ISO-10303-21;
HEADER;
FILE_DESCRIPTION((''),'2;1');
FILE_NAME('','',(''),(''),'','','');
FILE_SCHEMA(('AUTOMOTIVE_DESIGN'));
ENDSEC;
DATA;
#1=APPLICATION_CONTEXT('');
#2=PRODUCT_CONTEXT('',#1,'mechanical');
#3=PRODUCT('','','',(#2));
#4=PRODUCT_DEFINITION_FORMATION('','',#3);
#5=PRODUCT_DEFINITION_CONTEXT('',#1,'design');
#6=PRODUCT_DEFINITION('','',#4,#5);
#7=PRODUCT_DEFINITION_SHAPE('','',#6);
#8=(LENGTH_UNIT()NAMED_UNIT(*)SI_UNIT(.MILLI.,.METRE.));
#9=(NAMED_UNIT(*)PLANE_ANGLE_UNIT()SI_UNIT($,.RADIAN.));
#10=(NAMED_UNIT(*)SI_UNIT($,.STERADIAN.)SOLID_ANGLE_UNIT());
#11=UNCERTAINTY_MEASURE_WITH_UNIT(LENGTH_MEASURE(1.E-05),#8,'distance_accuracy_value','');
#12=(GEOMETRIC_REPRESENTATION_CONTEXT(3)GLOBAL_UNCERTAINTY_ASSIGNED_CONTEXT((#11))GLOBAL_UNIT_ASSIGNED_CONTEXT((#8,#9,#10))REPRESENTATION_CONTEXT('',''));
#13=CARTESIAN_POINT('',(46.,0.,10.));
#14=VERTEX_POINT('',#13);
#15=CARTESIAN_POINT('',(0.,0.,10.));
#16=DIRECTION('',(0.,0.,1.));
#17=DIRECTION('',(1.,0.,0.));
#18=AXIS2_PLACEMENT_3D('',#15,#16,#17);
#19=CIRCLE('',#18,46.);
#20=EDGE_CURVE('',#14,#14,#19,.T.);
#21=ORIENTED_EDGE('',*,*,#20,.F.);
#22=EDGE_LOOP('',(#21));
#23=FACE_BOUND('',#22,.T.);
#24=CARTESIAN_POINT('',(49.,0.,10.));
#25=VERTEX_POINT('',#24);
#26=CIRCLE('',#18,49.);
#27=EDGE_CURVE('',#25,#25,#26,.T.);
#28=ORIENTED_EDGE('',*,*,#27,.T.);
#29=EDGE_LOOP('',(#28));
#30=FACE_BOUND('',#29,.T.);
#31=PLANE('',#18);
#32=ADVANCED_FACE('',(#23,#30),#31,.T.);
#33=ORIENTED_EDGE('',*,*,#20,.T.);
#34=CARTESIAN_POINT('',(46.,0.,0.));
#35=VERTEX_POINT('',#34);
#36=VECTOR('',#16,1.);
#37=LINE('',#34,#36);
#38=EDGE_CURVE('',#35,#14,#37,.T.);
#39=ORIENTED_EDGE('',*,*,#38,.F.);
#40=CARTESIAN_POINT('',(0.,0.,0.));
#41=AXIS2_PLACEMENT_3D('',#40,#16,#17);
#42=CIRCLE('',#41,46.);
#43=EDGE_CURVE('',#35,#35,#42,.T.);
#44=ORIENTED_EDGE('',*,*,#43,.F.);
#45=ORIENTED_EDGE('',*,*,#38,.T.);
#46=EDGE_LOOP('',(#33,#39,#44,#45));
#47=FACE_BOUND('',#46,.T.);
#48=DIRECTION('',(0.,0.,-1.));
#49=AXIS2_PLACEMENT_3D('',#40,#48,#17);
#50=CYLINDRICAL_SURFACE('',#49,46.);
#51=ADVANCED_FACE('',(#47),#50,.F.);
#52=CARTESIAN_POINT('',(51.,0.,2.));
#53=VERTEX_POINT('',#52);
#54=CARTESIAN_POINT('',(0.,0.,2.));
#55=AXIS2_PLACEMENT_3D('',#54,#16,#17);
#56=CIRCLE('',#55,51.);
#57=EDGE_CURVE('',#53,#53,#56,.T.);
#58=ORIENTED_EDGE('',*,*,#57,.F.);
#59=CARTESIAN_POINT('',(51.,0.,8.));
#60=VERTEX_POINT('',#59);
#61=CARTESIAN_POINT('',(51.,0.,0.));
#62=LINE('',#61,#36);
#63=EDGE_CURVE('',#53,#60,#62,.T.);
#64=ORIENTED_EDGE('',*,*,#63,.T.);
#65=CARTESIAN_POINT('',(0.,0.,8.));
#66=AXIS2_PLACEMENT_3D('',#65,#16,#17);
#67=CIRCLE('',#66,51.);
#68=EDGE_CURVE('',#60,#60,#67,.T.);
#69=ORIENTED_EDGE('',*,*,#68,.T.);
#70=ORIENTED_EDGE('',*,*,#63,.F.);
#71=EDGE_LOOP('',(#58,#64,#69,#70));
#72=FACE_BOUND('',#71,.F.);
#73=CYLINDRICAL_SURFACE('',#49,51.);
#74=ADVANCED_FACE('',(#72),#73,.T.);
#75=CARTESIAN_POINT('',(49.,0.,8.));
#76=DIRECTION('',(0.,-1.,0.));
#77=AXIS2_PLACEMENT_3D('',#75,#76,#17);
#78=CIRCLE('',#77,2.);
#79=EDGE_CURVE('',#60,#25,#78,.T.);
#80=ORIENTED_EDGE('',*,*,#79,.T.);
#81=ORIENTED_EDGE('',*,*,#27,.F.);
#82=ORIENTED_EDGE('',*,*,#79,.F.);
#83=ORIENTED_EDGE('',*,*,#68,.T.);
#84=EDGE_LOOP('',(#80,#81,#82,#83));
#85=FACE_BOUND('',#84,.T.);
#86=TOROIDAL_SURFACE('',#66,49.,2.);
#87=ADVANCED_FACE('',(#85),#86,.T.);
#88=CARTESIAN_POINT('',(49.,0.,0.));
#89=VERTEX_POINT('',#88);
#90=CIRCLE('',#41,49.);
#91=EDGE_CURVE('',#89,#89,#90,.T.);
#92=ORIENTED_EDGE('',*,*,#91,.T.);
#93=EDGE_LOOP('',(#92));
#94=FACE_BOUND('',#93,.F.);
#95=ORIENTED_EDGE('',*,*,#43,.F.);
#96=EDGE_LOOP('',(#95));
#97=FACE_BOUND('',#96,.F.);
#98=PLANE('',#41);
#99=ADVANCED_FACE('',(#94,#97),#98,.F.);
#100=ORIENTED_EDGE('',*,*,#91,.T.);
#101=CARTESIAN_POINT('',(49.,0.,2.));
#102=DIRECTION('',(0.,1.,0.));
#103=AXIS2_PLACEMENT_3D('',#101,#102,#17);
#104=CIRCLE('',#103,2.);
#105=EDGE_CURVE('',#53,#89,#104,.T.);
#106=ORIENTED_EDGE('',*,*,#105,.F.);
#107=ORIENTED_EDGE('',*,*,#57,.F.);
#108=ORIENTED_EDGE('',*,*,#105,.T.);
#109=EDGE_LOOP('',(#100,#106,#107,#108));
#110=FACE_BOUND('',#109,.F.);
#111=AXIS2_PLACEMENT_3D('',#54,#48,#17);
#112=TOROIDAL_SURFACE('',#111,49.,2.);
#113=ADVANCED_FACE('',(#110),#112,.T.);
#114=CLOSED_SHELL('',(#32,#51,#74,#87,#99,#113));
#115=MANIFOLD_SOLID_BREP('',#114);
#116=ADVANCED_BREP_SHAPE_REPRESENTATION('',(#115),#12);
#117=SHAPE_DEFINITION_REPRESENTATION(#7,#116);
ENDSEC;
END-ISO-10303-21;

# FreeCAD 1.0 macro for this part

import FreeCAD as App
import Part
import Sketcher
Q = App.Units.Quantity


def edges_at(feature, points):
    """Names of the edges that pass closest to the given points."""
    edges = feature.Shape.Edges
    near = lambda p: min(range(len(edges)), key=lambda i: edges[i].distToShape(Part.Vertex(*p))[0])
    return sorted({f"Edge{near(p) + 1}" for p in points})

doc = App.newDocument("Part")
body = doc.addObject("PartDesign::Body", "Body")

sketch1 = doc.addObject("Sketcher::SketchObject", "Sketch")
body.addObject(sketch1)
sketch1.AttachmentSupport = (doc.XY_Plane, [""])
sketch1.MapMode = "FlatFace"
sketch1.addGeometry(Part.Circle(App.Vector(0, 0, 0), App.Vector(0, 0, 1), 51), False)
sketch1.addGeometry(Part.Circle(App.Vector(0, 0, 0), App.Vector(0, 0, 1), 46), False)
sketch1.addConstraint(Sketcher.Constraint("Coincident", 0, 3, -1, 1))
sketch1.addConstraint(Sketcher.Constraint("Coincident", 1, 3, -1, 1))
sketch1.addConstraint(Sketcher.Constraint("Diameter", 0, Q("102 mm")))
sketch1.addConstraint(Sketcher.Constraint("Diameter", 1, Q("92 mm")))
pad1 = doc.addObject("PartDesign::Pad", "Pad")
body.addObject(pad1)
pad1.Profile = sketch1
pad1.Length = 10
doc.recompute()

fillet = doc.addObject("PartDesign::Fillet", "Fillet")
body.addObject(fillet)
fillet.Base = (pad1, edges_at(pad1, [(-51, 0, 10), (-51, 0, 0)]))
fillet.Radius = 2

doc.recompute()
